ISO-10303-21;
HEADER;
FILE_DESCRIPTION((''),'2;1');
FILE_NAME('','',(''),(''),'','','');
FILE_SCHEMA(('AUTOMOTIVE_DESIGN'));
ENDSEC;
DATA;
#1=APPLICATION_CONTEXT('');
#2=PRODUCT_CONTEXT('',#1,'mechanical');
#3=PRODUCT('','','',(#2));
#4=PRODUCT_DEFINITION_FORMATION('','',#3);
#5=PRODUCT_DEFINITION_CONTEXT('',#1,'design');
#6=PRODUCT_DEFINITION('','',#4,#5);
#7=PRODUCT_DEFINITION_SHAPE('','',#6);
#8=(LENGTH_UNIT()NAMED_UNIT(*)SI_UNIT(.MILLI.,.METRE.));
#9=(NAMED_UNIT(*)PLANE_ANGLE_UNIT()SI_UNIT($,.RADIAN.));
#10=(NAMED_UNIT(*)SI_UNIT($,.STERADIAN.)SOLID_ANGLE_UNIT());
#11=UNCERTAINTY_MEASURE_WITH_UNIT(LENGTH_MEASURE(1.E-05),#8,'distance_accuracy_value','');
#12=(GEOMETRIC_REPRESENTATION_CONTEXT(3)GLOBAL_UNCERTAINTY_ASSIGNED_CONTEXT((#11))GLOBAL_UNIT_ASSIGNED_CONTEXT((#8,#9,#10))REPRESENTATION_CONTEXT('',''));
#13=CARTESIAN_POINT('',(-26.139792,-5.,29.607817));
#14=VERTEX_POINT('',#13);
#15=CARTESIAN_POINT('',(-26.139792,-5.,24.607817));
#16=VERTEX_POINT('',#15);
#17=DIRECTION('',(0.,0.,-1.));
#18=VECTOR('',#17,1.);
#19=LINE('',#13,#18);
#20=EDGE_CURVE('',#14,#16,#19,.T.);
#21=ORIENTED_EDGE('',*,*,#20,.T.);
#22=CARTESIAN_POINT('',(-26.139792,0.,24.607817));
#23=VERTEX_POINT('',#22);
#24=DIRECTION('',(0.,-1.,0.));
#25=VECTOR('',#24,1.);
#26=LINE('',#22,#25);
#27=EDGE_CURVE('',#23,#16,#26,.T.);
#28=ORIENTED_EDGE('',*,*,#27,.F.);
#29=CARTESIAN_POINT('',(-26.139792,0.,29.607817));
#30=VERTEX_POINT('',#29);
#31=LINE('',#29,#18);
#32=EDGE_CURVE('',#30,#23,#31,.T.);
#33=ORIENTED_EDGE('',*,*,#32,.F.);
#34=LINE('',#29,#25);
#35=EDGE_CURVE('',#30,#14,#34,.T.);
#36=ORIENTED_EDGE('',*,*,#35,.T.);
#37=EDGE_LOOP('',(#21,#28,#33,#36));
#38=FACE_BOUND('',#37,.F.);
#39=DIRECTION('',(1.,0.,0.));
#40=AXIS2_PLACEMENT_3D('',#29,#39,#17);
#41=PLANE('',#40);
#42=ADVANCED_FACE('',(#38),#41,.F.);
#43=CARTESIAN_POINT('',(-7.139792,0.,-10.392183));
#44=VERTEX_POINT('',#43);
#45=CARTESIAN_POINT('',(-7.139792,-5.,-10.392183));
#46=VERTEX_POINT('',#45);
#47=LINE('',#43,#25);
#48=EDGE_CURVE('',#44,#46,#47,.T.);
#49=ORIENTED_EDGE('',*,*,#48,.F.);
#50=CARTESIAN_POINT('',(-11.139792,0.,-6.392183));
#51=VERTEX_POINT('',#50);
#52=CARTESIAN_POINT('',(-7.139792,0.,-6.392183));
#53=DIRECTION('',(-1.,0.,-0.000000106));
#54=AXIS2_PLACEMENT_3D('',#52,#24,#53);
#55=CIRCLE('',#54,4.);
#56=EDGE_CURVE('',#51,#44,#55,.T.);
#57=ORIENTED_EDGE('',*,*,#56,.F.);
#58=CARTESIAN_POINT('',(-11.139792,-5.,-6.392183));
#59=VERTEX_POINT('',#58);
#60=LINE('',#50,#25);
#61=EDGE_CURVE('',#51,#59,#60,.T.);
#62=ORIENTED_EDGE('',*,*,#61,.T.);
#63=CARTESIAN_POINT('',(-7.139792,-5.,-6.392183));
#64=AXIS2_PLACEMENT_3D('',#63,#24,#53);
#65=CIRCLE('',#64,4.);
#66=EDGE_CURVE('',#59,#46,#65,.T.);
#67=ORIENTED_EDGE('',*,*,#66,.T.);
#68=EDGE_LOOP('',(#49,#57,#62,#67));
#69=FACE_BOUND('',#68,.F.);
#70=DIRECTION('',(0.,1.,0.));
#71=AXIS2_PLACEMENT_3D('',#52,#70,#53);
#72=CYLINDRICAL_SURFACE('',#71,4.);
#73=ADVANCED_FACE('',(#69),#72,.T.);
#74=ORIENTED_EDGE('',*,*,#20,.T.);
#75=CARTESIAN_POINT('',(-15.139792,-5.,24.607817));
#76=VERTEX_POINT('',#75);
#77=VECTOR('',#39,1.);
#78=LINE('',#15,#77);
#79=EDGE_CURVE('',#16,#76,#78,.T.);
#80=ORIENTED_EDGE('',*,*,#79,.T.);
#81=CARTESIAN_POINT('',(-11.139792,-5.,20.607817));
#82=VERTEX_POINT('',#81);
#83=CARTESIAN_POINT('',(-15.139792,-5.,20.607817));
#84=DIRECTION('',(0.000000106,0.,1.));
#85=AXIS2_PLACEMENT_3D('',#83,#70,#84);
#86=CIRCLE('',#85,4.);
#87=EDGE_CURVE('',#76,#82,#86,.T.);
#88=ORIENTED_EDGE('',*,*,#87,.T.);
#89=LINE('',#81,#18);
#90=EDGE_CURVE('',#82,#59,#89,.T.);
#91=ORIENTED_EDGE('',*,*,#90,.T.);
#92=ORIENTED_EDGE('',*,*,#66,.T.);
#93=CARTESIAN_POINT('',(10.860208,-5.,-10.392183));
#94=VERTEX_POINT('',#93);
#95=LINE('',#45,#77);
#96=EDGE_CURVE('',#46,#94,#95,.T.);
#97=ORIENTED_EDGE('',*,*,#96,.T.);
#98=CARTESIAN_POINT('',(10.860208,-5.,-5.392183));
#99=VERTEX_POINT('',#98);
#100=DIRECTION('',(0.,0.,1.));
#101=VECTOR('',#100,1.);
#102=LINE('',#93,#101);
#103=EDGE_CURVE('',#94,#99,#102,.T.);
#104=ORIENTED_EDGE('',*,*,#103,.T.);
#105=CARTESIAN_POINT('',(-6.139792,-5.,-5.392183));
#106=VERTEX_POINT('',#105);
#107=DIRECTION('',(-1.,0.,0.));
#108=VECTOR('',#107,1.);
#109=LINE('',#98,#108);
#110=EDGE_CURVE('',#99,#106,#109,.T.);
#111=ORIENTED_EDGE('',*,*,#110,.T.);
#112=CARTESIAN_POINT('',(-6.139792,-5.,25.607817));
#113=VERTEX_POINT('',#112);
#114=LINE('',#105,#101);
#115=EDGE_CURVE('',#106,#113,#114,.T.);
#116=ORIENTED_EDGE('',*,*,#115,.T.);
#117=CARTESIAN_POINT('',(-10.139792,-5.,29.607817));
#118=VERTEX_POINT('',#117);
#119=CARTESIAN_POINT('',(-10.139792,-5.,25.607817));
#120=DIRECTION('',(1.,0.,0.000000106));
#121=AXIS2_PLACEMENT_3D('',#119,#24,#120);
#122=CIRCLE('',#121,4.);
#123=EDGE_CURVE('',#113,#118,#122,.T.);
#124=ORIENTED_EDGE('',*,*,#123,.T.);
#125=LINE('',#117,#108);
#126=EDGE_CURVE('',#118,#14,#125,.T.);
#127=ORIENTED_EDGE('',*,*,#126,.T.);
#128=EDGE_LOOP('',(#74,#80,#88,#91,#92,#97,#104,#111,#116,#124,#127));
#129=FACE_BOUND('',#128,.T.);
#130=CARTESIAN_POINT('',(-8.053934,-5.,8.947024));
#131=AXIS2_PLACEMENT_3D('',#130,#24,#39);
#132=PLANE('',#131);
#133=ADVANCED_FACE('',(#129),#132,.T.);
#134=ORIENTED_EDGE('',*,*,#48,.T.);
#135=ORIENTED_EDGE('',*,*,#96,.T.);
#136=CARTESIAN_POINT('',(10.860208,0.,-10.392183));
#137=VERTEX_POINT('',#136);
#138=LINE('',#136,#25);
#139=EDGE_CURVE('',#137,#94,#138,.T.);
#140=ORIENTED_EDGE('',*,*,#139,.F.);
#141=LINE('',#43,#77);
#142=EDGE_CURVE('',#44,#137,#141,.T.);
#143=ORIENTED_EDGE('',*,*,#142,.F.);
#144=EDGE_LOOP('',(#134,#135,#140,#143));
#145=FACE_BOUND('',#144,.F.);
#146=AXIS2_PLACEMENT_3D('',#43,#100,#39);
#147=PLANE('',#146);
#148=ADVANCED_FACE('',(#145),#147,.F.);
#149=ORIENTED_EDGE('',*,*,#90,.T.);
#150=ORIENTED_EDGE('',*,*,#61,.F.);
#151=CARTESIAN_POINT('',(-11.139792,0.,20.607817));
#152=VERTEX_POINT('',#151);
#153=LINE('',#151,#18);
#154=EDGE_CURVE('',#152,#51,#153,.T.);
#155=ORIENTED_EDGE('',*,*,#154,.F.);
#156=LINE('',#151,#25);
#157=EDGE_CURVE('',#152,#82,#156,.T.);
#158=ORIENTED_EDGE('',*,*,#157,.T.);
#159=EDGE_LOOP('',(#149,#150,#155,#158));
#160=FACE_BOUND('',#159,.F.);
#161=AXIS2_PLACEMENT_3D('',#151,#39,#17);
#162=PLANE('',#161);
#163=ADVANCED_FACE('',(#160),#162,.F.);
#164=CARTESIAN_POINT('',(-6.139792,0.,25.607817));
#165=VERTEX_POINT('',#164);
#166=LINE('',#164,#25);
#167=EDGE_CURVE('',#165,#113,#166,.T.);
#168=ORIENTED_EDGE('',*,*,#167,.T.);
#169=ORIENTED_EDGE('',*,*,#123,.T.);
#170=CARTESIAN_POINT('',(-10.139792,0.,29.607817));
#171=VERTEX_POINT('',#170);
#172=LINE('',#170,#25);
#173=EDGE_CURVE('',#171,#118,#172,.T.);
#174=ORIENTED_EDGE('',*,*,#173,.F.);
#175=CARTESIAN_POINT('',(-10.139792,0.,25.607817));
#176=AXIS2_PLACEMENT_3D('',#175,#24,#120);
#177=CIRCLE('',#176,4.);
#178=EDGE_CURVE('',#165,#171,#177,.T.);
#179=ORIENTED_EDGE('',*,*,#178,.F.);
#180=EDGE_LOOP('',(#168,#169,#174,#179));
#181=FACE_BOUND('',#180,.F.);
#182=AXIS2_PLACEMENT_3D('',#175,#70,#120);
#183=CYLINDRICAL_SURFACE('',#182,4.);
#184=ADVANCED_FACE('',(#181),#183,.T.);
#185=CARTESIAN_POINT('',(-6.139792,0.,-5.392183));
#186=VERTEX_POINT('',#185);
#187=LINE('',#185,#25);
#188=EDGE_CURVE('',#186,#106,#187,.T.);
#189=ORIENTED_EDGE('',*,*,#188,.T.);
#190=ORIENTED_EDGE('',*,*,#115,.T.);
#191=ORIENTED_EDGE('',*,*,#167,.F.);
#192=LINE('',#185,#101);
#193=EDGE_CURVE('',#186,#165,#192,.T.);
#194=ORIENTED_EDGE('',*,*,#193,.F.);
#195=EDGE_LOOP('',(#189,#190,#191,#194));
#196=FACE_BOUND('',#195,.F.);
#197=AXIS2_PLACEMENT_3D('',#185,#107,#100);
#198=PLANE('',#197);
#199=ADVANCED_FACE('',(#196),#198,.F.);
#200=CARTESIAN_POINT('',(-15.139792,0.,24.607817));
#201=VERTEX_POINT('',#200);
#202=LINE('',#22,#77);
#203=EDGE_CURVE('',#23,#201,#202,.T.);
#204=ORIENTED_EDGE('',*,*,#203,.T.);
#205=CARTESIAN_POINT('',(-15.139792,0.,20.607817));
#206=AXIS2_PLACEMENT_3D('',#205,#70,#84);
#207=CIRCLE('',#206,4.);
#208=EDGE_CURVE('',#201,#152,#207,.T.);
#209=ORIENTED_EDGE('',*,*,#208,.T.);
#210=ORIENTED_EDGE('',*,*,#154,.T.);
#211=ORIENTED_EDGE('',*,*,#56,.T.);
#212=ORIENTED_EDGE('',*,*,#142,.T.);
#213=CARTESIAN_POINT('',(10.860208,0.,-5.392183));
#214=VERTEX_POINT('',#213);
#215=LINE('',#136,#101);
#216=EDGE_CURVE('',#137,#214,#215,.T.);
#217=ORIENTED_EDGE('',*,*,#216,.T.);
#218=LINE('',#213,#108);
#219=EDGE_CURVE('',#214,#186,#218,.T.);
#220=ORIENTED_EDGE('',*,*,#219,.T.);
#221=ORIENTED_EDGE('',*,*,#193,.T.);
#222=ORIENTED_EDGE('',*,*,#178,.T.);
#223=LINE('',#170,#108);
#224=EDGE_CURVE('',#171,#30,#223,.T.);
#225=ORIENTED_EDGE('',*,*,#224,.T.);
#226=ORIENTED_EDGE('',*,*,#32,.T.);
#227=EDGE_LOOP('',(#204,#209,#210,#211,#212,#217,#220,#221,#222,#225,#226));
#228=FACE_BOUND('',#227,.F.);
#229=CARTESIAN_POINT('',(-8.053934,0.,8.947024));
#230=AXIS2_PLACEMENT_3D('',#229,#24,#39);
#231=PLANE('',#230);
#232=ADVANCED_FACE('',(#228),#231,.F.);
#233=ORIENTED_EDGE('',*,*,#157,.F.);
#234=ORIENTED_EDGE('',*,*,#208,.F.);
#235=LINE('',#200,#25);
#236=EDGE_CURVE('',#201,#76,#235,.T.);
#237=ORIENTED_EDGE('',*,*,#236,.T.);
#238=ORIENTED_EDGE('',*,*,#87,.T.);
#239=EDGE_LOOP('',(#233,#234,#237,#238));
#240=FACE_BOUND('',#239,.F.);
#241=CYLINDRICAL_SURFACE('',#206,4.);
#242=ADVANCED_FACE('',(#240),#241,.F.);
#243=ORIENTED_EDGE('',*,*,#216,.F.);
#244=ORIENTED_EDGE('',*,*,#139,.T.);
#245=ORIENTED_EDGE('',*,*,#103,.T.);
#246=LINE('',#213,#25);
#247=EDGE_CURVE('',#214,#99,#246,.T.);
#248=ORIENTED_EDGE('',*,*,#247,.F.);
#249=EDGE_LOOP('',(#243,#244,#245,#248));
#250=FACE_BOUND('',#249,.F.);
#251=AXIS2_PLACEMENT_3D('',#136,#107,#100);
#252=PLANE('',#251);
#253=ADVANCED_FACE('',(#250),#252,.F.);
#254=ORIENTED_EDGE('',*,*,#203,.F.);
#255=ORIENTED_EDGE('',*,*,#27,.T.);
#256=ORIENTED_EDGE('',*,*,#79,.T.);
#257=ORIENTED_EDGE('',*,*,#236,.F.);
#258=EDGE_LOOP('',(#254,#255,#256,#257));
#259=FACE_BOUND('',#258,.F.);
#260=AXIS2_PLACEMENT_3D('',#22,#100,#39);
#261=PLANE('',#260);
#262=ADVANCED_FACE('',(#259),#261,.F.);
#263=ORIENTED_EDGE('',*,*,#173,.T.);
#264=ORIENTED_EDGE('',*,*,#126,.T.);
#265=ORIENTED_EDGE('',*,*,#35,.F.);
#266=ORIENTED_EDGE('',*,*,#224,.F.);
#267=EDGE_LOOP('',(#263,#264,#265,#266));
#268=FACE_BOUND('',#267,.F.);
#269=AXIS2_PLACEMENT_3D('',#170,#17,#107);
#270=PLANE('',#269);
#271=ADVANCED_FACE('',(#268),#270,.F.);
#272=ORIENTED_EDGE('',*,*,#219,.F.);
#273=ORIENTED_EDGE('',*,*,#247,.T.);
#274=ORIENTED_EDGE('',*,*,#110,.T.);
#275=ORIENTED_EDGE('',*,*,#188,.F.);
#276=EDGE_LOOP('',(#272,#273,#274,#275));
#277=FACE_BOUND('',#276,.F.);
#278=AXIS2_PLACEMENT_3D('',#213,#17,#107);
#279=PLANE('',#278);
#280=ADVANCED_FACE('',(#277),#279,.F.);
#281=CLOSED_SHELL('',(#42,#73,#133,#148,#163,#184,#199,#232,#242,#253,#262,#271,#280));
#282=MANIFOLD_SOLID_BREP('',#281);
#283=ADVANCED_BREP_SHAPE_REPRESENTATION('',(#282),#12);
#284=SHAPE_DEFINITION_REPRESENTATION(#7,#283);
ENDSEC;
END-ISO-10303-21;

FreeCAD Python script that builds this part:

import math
import FreeCAD as App
import Part
import Sketcher
Q = App.Units.Quantity

doc = App.newDocument("Part")
body = doc.addObject("PartDesign::Body", "Body")

sketch1 = body.newObject("Sketcher::SketchObject", "Sketch")
sketch1.AttachmentSupport = (doc.getObject("XZ_Plane"), [""])
sketch1.MapMode = "FlatFace"
sketch1.addGeometry(Part.LineSegment(App.Vector(-26.139792, 29.607817, 0), App.Vector(-26.139792, 24.607817, 0)), False)
sketch1.addGeometry(Part.LineSegment(App.Vector(-26.139792, 24.607817, 0), App.Vector(-15.139792, 24.607817, 0)), False)
sketch1.addGeometry(Part.ArcOfCircle(Part.Circle(App.Vector(-15.139792, 20.607817, 0), App.Vector(0, 0, 1), 4), math.radians(0.000006), math.radians(89.999994)), False)
sketch1.addGeometry(Part.LineSegment(App.Vector(-11.139792, 20.607817, 0), App.Vector(-11.139792, -6.392183, 0)), False)
sketch1.addGeometry(Part.ArcOfCircle(Part.Circle(App.Vector(-7.139792, -6.392183, 0), App.Vector(0, 0, 1), 4), math.radians(-179.999994), math.radians(-90.000006)), False)
sketch1.addGeometry(Part.LineSegment(App.Vector(-7.139792, -10.392183, 0), App.Vector(10.860208, -10.392183, 0)), False)
sketch1.addGeometry(Part.LineSegment(App.Vector(10.860208, -10.392183, 0), App.Vector(10.860208, -5.392183, 0)), False)
sketch1.addGeometry(Part.LineSegment(App.Vector(10.860208, -5.392183, 0), App.Vector(-6.139792, -5.392183, 0)), False)
sketch1.addGeometry(Part.LineSegment(App.Vector(-6.139792, -5.392183, 0), App.Vector(-6.139792, 25.607817, 0)), False)
sketch1.addGeometry(Part.ArcOfCircle(Part.Circle(App.Vector(-10.139792, 25.607817, 0), App.Vector(0, 0, 1), 4), math.radians(0.000006), math.radians(89.999994)), False)
sketch1.addGeometry(Part.LineSegment(App.Vector(-10.139792, 29.607817, 0), App.Vector(-26.139792, 29.607817, 0)), False)
sketch1.addConstraint(Sketcher.Constraint("Coincident", 0, 2, 1, 1))
sketch1.addConstraint(Sketcher.Constraint("Tangent", 1, 2, 2, 2))
sketch1.addConstraint(Sketcher.Constraint("Tangent", 2, 1, 3, 1))
sketch1.addConstraint(Sketcher.Constraint("Tangent", 3, 2, 4, 1))
sketch1.addConstraint(Sketcher.Constraint("Tangent", 4, 2, 5, 1))
sketch1.addConstraint(Sketcher.Constraint("Coincident", 5, 2, 6, 1))
sketch1.addConstraint(Sketcher.Constraint("Coincident", 6, 2, 7, 1))
sketch1.addConstraint(Sketcher.Constraint("Coincident", 7, 2, 8, 1))
sketch1.addConstraint(Sketcher.Constraint("Tangent", 8, 2, 9, 1))
sketch1.addConstraint(Sketcher.Constraint("Tangent", 9, 2, 10, 1))
sketch1.addConstraint(Sketcher.Constraint("Coincident", 10, 2, 0, 1))
sketch1.addConstraint(Sketcher.Constraint("Vertical", 0))
sketch1.addConstraint(Sketcher.Constraint("Horizontal", 1))
sketch1.addConstraint(Sketcher.Constraint("Vertical", 3))
sketch1.addConstraint(Sketcher.Constraint("Horizontal", 5))
sketch1.addConstraint(Sketcher.Constraint("Vertical", 6))
sketch1.addConstraint(Sketcher.Constraint("Horizontal", 7))
sketch1.addConstraint(Sketcher.Constraint("Vertical", 8))
sketch1.addConstraint(Sketcher.Constraint("Horizontal", 10))
sketch1.addConstraint(Sketcher.Constraint("Equal", 2, 4))
sketch1.addConstraint(Sketcher.Constraint("Equal", 4, 9))
sketch1.addConstraint(Sketcher.Constraint("Equal", 0, 6))
sketch1.addConstraint(Sketcher.Constraint("Radius", 2, Q("4 mm")))
sketch1.addConstraint(Sketcher.Constraint("DistanceX", 1, 1, 1, 2, Q("11 mm")))
sketch1.addConstraint(Sketcher.Constraint("DistanceX", 5, 1, 5, 2, Q("18 mm")))
sketch1.addConstraint(Sketcher.Constraint("DistanceX", 7, 2, 7, 1, Q("17 mm")))
sketch1.addConstraint(Sketcher.Constraint("DistanceY", 0, 2, 0, 1, Q("5 mm")))
sketch1.addConstraint(Sketcher.Constraint("DistanceY", 3, 2, 3, 1, Q("27 mm")))
sketch1.addConstraint(Sketcher.Constraint("DistanceX", 4, 3, -1, 1, Q("7.139792 mm")))
sketch1.addConstraint(Sketcher.Constraint("DistanceY", -1, 1, 2, 3, Q("20.607817 mm")))
pad1 = body.newObject("PartDesign::Pad", "Pad")
pad1.Profile = sketch1
pad1.Length = 5

doc.recompute()
